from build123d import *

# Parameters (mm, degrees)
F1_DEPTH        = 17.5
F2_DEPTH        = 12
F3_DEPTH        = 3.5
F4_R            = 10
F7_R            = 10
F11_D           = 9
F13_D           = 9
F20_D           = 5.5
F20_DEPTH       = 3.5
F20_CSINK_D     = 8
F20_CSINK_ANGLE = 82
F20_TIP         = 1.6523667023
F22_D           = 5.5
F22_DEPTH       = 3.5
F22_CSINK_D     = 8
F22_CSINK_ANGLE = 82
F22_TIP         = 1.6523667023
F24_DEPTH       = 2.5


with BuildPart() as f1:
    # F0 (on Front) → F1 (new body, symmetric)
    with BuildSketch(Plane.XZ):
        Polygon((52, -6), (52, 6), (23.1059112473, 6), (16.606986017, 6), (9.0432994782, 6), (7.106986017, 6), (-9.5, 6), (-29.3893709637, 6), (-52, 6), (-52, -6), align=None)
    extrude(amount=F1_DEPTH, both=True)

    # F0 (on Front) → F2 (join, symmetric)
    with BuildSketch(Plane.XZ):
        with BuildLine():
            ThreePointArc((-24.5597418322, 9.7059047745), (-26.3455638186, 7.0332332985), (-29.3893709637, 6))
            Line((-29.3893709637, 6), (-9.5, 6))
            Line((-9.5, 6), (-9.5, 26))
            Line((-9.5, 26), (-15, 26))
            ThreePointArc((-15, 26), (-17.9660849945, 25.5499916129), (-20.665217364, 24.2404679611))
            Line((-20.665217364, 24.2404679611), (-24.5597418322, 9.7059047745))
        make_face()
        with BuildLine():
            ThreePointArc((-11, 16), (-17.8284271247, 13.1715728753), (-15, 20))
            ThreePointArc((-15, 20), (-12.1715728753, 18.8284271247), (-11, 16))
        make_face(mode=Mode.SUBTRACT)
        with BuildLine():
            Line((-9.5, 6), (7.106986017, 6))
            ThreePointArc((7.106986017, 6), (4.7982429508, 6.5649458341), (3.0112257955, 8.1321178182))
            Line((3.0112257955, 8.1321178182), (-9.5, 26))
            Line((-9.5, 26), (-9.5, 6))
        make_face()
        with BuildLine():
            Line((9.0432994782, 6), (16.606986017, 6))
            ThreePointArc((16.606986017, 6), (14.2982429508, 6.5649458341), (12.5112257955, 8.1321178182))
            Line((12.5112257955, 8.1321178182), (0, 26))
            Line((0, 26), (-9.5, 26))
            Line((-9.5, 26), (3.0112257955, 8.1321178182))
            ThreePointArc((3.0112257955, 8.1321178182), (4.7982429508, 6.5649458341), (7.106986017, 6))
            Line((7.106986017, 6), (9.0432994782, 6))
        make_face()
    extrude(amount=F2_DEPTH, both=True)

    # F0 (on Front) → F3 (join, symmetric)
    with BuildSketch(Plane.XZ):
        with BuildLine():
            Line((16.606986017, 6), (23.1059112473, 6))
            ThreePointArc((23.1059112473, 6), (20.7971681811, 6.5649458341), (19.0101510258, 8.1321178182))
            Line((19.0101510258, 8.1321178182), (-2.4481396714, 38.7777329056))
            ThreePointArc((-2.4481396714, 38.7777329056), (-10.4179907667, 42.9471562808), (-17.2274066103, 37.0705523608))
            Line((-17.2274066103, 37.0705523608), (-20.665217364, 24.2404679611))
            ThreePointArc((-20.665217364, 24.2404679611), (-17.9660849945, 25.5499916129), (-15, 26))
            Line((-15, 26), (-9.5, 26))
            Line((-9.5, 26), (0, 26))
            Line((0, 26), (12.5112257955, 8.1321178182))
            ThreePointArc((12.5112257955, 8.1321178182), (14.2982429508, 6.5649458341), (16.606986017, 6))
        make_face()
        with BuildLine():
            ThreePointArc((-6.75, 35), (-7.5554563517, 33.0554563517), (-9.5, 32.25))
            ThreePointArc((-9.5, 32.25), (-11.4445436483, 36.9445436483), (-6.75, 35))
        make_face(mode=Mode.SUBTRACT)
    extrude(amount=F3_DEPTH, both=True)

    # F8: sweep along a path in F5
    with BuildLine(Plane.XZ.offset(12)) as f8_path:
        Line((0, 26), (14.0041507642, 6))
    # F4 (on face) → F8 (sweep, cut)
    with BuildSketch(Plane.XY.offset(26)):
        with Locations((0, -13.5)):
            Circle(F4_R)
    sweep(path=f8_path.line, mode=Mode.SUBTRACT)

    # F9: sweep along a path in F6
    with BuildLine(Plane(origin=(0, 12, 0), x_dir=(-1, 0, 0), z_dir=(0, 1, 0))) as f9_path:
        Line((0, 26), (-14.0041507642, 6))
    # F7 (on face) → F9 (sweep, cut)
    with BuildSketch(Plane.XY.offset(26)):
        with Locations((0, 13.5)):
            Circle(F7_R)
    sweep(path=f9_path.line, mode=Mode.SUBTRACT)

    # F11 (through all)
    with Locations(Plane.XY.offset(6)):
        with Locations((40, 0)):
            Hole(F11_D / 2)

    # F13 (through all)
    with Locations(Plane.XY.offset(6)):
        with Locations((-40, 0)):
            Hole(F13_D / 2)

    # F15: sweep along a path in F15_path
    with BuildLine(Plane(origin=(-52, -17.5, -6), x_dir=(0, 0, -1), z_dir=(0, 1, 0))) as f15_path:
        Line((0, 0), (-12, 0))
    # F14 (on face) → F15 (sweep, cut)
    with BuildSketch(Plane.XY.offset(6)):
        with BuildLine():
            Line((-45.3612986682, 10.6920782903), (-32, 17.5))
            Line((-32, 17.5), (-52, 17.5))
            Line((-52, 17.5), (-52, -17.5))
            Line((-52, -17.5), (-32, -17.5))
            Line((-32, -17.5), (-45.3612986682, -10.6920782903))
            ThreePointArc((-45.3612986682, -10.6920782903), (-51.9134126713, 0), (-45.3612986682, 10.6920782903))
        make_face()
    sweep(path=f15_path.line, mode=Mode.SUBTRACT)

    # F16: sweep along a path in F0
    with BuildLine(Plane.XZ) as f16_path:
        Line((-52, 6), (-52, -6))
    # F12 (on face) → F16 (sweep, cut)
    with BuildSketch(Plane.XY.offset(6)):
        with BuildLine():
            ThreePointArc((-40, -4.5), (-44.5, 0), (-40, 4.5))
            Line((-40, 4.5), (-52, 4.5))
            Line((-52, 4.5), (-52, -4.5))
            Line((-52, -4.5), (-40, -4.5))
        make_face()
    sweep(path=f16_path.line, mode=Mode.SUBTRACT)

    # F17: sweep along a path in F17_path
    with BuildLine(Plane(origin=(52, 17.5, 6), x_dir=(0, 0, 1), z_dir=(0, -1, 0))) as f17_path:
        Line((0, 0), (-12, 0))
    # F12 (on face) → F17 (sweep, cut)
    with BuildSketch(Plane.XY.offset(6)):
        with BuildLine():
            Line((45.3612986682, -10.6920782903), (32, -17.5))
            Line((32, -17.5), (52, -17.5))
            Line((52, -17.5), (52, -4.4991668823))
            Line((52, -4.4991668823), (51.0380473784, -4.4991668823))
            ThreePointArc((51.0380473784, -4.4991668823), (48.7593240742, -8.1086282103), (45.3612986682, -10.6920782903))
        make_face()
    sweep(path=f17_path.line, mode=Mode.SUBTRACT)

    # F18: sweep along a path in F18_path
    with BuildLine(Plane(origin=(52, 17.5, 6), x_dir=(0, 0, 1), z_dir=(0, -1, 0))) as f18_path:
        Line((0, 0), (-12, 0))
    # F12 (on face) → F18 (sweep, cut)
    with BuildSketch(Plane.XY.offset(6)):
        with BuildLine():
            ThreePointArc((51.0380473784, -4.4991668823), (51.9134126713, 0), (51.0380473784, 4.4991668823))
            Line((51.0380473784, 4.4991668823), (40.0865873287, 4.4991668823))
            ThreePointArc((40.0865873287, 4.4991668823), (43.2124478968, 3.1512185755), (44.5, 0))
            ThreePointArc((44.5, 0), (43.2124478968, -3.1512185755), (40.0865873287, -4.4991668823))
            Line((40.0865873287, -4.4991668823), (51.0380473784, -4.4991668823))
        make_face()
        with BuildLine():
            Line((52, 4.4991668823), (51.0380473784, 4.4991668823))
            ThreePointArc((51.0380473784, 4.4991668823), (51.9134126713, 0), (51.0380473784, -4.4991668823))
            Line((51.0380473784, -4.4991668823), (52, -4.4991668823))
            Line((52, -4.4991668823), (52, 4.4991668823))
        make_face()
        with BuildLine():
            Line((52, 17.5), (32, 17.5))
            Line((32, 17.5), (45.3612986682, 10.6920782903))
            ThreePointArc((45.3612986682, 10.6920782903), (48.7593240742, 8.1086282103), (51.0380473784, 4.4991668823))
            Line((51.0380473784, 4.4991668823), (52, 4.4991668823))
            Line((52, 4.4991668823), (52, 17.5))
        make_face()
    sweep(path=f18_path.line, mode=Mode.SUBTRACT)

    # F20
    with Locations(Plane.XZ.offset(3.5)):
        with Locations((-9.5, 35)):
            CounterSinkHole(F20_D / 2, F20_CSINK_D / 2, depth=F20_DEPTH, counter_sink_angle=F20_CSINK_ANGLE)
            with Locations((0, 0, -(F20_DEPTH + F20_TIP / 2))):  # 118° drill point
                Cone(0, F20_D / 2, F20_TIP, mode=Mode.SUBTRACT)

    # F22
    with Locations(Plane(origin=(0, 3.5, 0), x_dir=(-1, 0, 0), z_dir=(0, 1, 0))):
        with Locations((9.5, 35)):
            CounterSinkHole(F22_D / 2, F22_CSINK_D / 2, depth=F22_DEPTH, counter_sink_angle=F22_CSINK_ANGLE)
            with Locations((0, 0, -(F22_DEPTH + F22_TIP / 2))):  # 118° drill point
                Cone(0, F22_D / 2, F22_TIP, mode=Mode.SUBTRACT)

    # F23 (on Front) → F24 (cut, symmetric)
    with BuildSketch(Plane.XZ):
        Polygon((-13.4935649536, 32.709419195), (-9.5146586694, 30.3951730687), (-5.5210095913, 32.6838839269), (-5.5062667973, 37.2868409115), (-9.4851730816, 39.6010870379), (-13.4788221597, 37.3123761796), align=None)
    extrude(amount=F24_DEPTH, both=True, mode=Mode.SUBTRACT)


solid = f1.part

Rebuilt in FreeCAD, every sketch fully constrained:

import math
import FreeCAD as App
import Part
import Sketcher

V = App.Vector
Q = App.Units.Quantity


def add_polygon(sketch, points):
    """Adds a closed chain of lines whose ends are joined by coincident constraints."""
    first, n = sketch.GeometryCount, len(points)
    for a, b in zip(points, points[1:] + points[:1]):
        sketch.addGeometry(Part.LineSegment(App.Vector(*a, 0), App.Vector(*b, 0)), False)
    for i in range(n):
        sketch.addConstraint(Sketcher.Constraint("Coincident", first + i, 2, first + (i + 1) % n, 1))

doc = App.newDocument("Part")
body = doc.addObject("PartDesign::Body", "Body")

# Sketch on XZ plane
sketch1 = doc.addObject("Sketcher::SketchObject", "Sketch")
body.addObject(sketch1)
sketch1.AttachmentSupport = (doc.XZ_Plane, [""])
sketch1.MapMode = "FlatFace"
add_polygon(sketch1, [(52, -6), (52, 6), (-52, 6), (-52, -6)])  # lines 0-3
sketch1.addConstraint([
    Sketcher.Constraint("Vertical", 0),
    Sketcher.Constraint("Horizontal", 1),
    Sketcher.Constraint("Vertical", 2),
    Sketcher.Constraint("Horizontal", 3),
    Sketcher.Constraint("Symmetric", 0, 2, 2, 2, -1, 1),
    Sketcher.Constraint("DistanceX", 1, 2, 1, 1, Q("104 mm")),
    Sketcher.Constraint("DistanceY", 0, 1, 0, 2, Q("12 mm")),
])
pad1 = doc.addObject("PartDesign::Pad", "Pad")
body.addObject(pad1)
pad1.Profile = sketch1
pad1.Length = 35
pad1.Midplane = True

# Sketch on XZ plane
sketch2 = doc.addObject("Sketcher::SketchObject", "Sketch001")
body.addObject(sketch2)
sketch2.AttachmentSupport = (doc.XZ_Plane, [""])
sketch2.MapMode = "FlatFace"
sketch2.addGeometry([
    Part.ArcOfCircle(Part.Circle(V(-29.389371, 11, 0), V(0, 0, 1), 5), math.radians(-90), math.radians(-15)),  # 0
    Part.LineSegment(V(-29.389371, 6, 0), V(16.606986, 6, 0)),  # 1
    Part.ArcOfCircle(Part.Circle(V(16.606986, 11, 0), V(0, 0, 1), 5), math.radians(-145), math.radians(-90)),  # 2
    Part.LineSegment(V(12.511226, 8.132118, 0), V(0, 26, 0)),  # 3
    Part.LineSegment(V(0, 26, 0), V(-15, 26, 0)),  # 4
    Part.ArcOfCircle(Part.Circle(V(-15, 16, 0), V(0, 0, 1), 10), math.radians(90), math.radians(124.50803)),  # 5
    Part.LineSegment(V(-20.665217, 24.240468, 0), V(-24.559742, 9.705905, 0)),  # 6
    Part.ArcOfCircle(Part.Circle(V(-15, 16, 0), V(0, 0, 1), 4), math.radians(0), math.radians(90)),  # 7
    Part.ArcOfCircle(Part.Circle(V(-15, 16, 0), V(0, 0, 1), 4), math.radians(90), math.radians(360)),  # 8
], False)
sketch2.addConstraint([
    Sketcher.Constraint("Tangent", 0, 1, 1, 1),
    Sketcher.Constraint("Tangent", 1, 2, 2, 2),
    Sketcher.Constraint("Tangent", 2, 1, 3, 1),
    Sketcher.Constraint("Coincident", 3, 2, 4, 1),
    Sketcher.Constraint("Tangent", 4, 2, 5, 1),
    Sketcher.Constraint("Coincident", 5, 2, 6, 1),
    Sketcher.Constraint("Tangent", 6, 2, 0, 2),
    Sketcher.Constraint("Tangent", 7, 1, 8, 2),
    Sketcher.Constraint("Coincident", 8, 1, 7, 2),
    Sketcher.Constraint("Horizontal", 1),
    Sketcher.Constraint("Horizontal", 4),
    Sketcher.Constraint("Coincident", 7, 3, 5, 3),
    Sketcher.Constraint("Equal", 0, 2),
    Sketcher.Constraint("PointOnObject", 3, 2, -2),
    Sketcher.Constraint("Horizontal", 8, 3, 7, 1),
    Sketcher.Constraint("Vertical", 4, 2, 8, 1),
    Sketcher.Constraint("Radius", 0, Q("5 mm")),
    Sketcher.Constraint("Radius", 5, Q("10 mm")),
    Sketcher.Constraint("Radius", 7, Q("4 mm")),
    Sketcher.Constraint("DistanceX", 4, 2, 4, 1, Q("15 mm")),
    Sketcher.Constraint("Angle", 3, Q("125 deg")),
    Sketcher.Constraint("Angle", 6, Q("-105 deg")),
    Sketcher.Constraint("DistanceY", -1, 1, 0, 3, Q("11 mm")),
    Sketcher.Constraint("DistanceY", -1, 1, 5, 3, Q("16 mm")),
    Sketcher.Constraint("DistanceX", 1, 1, 1, 2, Q("45.996357 mm")),
])
pad2 = doc.addObject("PartDesign::Pad", "Pad001")
body.addObject(pad2)
pad2.Profile = sketch2
pad2.Length = 24
pad2.Midplane = True

# Sketch on XZ plane
sketch3 = doc.addObject("Sketcher::SketchObject", "Sketch002")
body.addObject(sketch3)
sketch3.AttachmentSupport = (doc.XZ_Plane, [""])
sketch3.MapMode = "FlatFace"
sketch3.addGeometry([
    Part.LineSegment(V(16.606986, 6, 0), V(23.105911, 6, 0)),  # 0
    Part.ArcOfCircle(Part.Circle(V(23.105911, 11, 0), V(0, 0, 1), 5), math.radians(-145), math.radians(-90)),  # 1
    Part.LineSegment(V(19.010151, 8.132118, 0), V(-2.44814, 38.777733, 0)),  # 2
    Part.ArcOfCircle(Part.Circle(V(-9.5, 35, 0), V(0, 0, 1), 8), math.radians(28.178278), math.radians(165)),  # 3
    Part.LineSegment(V(-17.227407, 37.070552, 0), V(-20.665217, 24.240468, 0)),  # 4
    Part.ArcOfCircle(Part.Circle(V(-15, 16, 0), V(0, 0, 1), 10), math.radians(90), math.radians(124.50803)),  # 5
    Part.LineSegment(V(-15, 26, 0), V(0, 26, 0)),  # 6
    Part.LineSegment(V(0, 26, 0), V(12.511226, 8.132118, 0)),  # 7
    Part.ArcOfCircle(Part.Circle(V(16.606986, 11, 0), V(0, 0, 1), 5), math.radians(-145), math.radians(-90)),  # 8
    Part.ArcOfCircle(Part.Circle(V(-9.5, 35, 0), V(0, 0, 1), 2.75), math.radians(0), math.radians(270)),  # 9
    Part.ArcOfCircle(Part.Circle(V(-9.5, 35, 0), V(0, 0, 1), 2.75), math.radians(-90), math.radians(0)),  # 10
], False)
sketch3.addConstraint([
    Sketcher.Constraint("Tangent", 0, 2, 1, 2),
    Sketcher.Constraint("Tangent", 1, 1, 2, 1),
    Sketcher.Constraint("Coincident", 2, 2, 3, 1),
    Sketcher.Constraint("Tangent", 3, 2, 4, 1),
    Sketcher.Constraint("Coincident", 4, 2, 5, 2),
    Sketcher.Constraint("Tangent", 5, 1, 6, 1),
    Sketcher.Constraint("Coincident", 6, 2, 7, 1),
    Sketcher.Constraint("Tangent", 7, 2, 8, 1),
    Sketcher.Constraint("Tangent", 8, 2, 0, 1),
    Sketcher.Constraint("Tangent", 9, 1, 10, 2),
    Sketcher.Constraint("Coincident", 10, 1, 9, 2),
    Sketcher.Constraint("Horizontal", 0),
    Sketcher.Constraint("Horizontal", 6),
    Sketcher.Constraint("Coincident", 9, 3, 3, 3),
    Sketcher.Constraint("Equal", 1, 8),
    Sketcher.Constraint("PointOnObject", 6, 2, -2),
    Sketcher.Constraint("Parallel", 2, 7),
    Sketcher.Constraint("Horizontal", 10, 3, 9, 1),
    Sketcher.Constraint("Vertical", 9, 3, 10, 1),
    Sketcher.Constraint("Radius", 1, Q("5 mm")),
    Sketcher.Constraint("Radius", 3, Q("8 mm")),
    Sketcher.Constraint("Radius", 5, Q("10 mm")),
    Sketcher.Constraint("DistanceX", 6, 1, 6, 2, Q("15 mm")),
    Sketcher.Constraint("Angle", 2, Q("125 deg")),
    Sketcher.Constraint("Angle", 4, Q("-105 deg")),
    Sketcher.Constraint("Radius", 9, Q("2.75 mm")),
    Sketcher.Constraint("DistanceY", -1, 1, 1, 3, Q("11 mm")),
    Sketcher.Constraint("DistanceY", -1, 1, 3, 3, Q("35 mm")),
    Sketcher.Constraint("DistanceY", -1, 1, 5, 3, Q("16 mm")),
    Sketcher.Constraint("DistanceX", 3, 3, -1, 1, Q("9.5 mm")),
    Sketcher.Constraint("Distance", 2, Q("37.411388 mm")),
])
pad3 = doc.addObject("PartDesign::Pad", "Pad002")
body.addObject(pad3)
pad3.Profile = sketch3
pad3.Length = 7
pad3.Midplane = True

# Sketch on XY plane
sketch4 = doc.addObject("Sketcher::SketchObject", "Sketch003")
body.addObject(sketch4)
sketch4.AttachmentSupport = (doc.XY_Plane, [""])
sketch4.MapMode = "FlatFace"
sketch4.AttachmentOffset = App.Placement(V(0, 0, 26), App.Rotation())
sketch4.addGeometry(Part.Circle(V(0, -13.5, 0), V(0, 0, 1), 10), False)
sketch4.addConstraint([
    Sketcher.Constraint("PointOnObject", 0, 3, -2),
    Sketcher.Constraint("Diameter", 0, Q("20 mm")),
    Sketcher.Constraint("DistanceY", 0, 3, -1, 1, Q("13.5 mm")),
])

# Sketch on an angled plane
sketch5 = doc.addObject("Sketcher::SketchObject", "Sketch004")
body.addObject(sketch5)
sketch5.Placement = App.Placement(V(12.216004, 0, 8.553738), App.Rotation(V(0.573576436, 0, -0.819152044), V(0, 0.999999999, 0), V(0.819152044, 0, 0.573576436), "ZXY"))
sketch5.addGeometry(Part.LineSegment(V(-21.297953, -12, 0), V(3.117539, -12, 0)), False)
sketch5.addConstraint([
    Sketcher.Constraint("Horizontal", 0),
    Sketcher.Constraint("DistanceY", 0, 1, -1, 1, Q("12 mm")),
    Sketcher.Constraint("DistanceX", 0, 1, 0, 2, Q("24.415492 mm")),
    Sketcher.Constraint("DistanceX", -1, 1, 0, 2, Q("3.117539 mm")),
])
doc.recompute()

subtractivepipe = doc.addObject("PartDesign::SubtractivePipe", "SubtractivePipe")
body.addObject(subtractivepipe)
subtractivepipe.Profile = sketch4
subtractivepipe.Spine = (sketch5, ["Edge1"])

# Sketch on XY plane
sketch6 = doc.addObject("Sketcher::SketchObject", "Sketch005")
body.addObject(sketch6)
sketch6.AttachmentSupport = (doc.XY_Plane, [""])
sketch6.MapMode = "FlatFace"
sketch6.AttachmentOffset = App.Placement(V(0, 0, 26), App.Rotation())
sketch6.addGeometry(Part.Circle(V(0, 13.5, 0), V(0, 0, 1), 10), False)
sketch6.addConstraint([
    Sketcher.Constraint("PointOnObject", 0, 3, -2),
    Sketcher.Constraint("Diameter", 0, Q("20 mm")),
    Sketcher.Constraint("DistanceY", -1, 1, 0, 3, Q("13.5 mm")),
])

# Sketch on an angled plane
sketch7 = doc.addObject("Sketcher::SketchObject", "Sketch006")
body.addObject(sketch7)
sketch7.Placement = App.Placement(V(12.216004, 0, 8.553738), App.Rotation(V(0.573576436, 0, -0.819152044), V(0, 0.999999999, 0), V(0.819152044, 0, 0.573576436), "ZXY"))
sketch7.addGeometry(Part.LineSegment(V(-21.297953, 12, 0), V(3.117539, 12, 0)), False)
sketch7.addConstraint([
    Sketcher.Constraint("Horizontal", 0),
    Sketcher.Constraint("DistanceY", -1, 1, 0, 1, Q("12 mm")),
    Sketcher.Constraint("DistanceX", 0, 1, 0, 2, Q("24.415492 mm")),
    Sketcher.Constraint("DistanceX", -1, 1, 0, 2, Q("3.117539 mm")),
])
doc.recompute()

subtractivepipe2 = doc.addObject("PartDesign::SubtractivePipe", "SubtractivePipe001")
body.addObject(subtractivepipe2)
subtractivepipe2.Profile = sketch6
subtractivepipe2.Spine = (sketch7, ["Edge1"])

# Sketch on XY plane
sketch8 = doc.addObject("Sketcher::SketchObject", "Sketch007")
body.addObject(sketch8)
sketch8.AttachmentSupport = (doc.XY_Plane, [""])
sketch8.MapMode = "FlatFace"
sketch8.AttachmentOffset = App.Placement(V(0, 0, 6), App.Rotation())
sketch8.addGeometry(Part.Circle(V(40, 0, 0), V(0, 0, 1), 4.5), False)
sketch8.addConstraint([
    Sketcher.Constraint("PointOnObject", 0, 3, -1),
    Sketcher.Constraint("Diameter", 0, Q("9 mm")),
    Sketcher.Constraint("DistanceX", -1, 1, 0, 3, Q("40 mm")),
])
doc.recompute()
hole = doc.addObject("PartDesign::Hole", "Hole")
body.addObject(hole)
hole.Profile = sketch8
hole.ThreadType = "None"
hole.Diameter = 9
hole.DepthType = "ThroughAll"

# Sketch on XY plane
sketch9 = doc.addObject("Sketcher::SketchObject", "Sketch008")
body.addObject(sketch9)
sketch9.AttachmentSupport = (doc.XY_Plane, [""])
sketch9.MapMode = "FlatFace"
sketch9.AttachmentOffset = App.Placement(V(0, 0, 6), App.Rotation())
sketch9.addGeometry(Part.Circle(V(-40, 0, 0), V(0, 0, 1), 4.5), False)
sketch9.addConstraint([
    Sketcher.Constraint("PointOnObject", 0, 3, -1),
    Sketcher.Constraint("Diameter", 0, Q("9 mm")),
    Sketcher.Constraint("DistanceX", 0, 3, -1, 1, Q("40 mm")),
])
doc.recompute()
hole2 = doc.addObject("PartDesign::Hole", "Hole001")
body.addObject(hole2)
hole2.Profile = sketch9
hole2.ThreadType = "None"
hole2.Diameter = 9
hole2.DepthType = "ThroughAll"

# Sketch on XY plane
sketch10 = doc.addObject("Sketcher::SketchObject", "Sketch009")
body.addObject(sketch10)
sketch10.AttachmentSupport = (doc.XY_Plane, [""])
sketch10.MapMode = "FlatFace"
sketch10.AttachmentOffset = App.Placement(V(0, 0, 6), App.Rotation())
sketch10.addGeometry([
    Part.LineSegment(V(-45.361299, 10.692078, 0), V(-32, 17.5, 0)),  # 0
    Part.LineSegment(V(-32, 17.5, 0), V(-52, 17.5, 0)),  # 1
    Part.LineSegment(V(-52, 17.5, 0), V(-52, -17.5, 0)),  # 2
    Part.LineSegment(V(-52, -17.5, 0), V(-32, -17.5, 0)),  # 3
    Part.LineSegment(V(-32, -17.5, 0), V(-45.361299, -10.692078, 0)),  # 4
    Part.ArcOfCircle(Part.Circle(V(-39.913413, 0, 0), V(0, 0, 1), 12), math.radians(117), math.radians(243)),  # 5
], False)
sketch10.addConstraint([
    Sketcher.Constraint("Coincident", 0, 2, 1, 1),
    Sketcher.Constraint("Coincident", 1, 2, 2, 1),
    Sketcher.Constraint("Coincident", 2, 2, 3, 1),
    Sketcher.Constraint("Coincident", 3, 2, 4, 1),
    Sketcher.Constraint("Tangent", 4, 2, 5, 2),
    Sketcher.Constraint("Tangent", 5, 1, 0, 1),
    Sketcher.Constraint("Horizontal", 1),
    Sketcher.Constraint("Vertical", 2),
    Sketcher.Constraint("Horizontal", 3),
    Sketcher.Constraint("Symmetric", 0, 2, 3, 2, -1),
    Sketcher.Constraint("PointOnObject", 5, 3, -1),
    Sketcher.Constraint("Radius", 5, Q("12 mm")),
    Sketcher.Constraint("DistanceX", 1, 2, 1, 1, Q("20 mm")),
    Sketcher.Constraint("DistanceY", 2, 2, 2, 1, Q("35 mm")),
    Sketcher.Constraint("Angle", 0, Q("27 deg")),
    Sketcher.Constraint("DistanceX", 0, 2, -1, 1, Q("32 mm")),
])

# Sketch on XZ plane
sketch11 = doc.addObject("Sketcher::SketchObject", "Sketch010")
body.addObject(sketch11)
sketch11.AttachmentSupport = (doc.XZ_Plane, [""])
sketch11.MapMode = "FlatFace"
sketch11.AttachmentOffset = App.Placement(V(0, 0, 17.5), App.Rotation())
sketch11.addGeometry(Part.LineSegment(V(-52, -6, 0), V(-52, 6, 0)), False)
sketch11.addConstraint([
    Sketcher.Constraint("Vertical", 0),
    Sketcher.Constraint("DistanceY", 0, 1, 0, 2, Q("12 mm")),
    Sketcher.Constraint("DistanceX", 0, 1, -1, 1, Q("52 mm")),
    Sketcher.Constraint("DistanceY", 0, 1, -1, 1, Q("6 mm")),
])
doc.recompute()

subtractivepipe3 = doc.addObject("PartDesign::SubtractivePipe", "SubtractivePipe002")
body.addObject(subtractivepipe3)
subtractivepipe3.Profile = sketch10
subtractivepipe3.Spine = (sketch11, ["Edge1"])

# Sketch on XY plane
sketch12 = doc.addObject("Sketcher::SketchObject", "Sketch011")
body.addObject(sketch12)
sketch12.AttachmentSupport = (doc.XY_Plane, [""])
sketch12.MapMode = "FlatFace"
sketch12.AttachmentOffset = App.Placement(V(0, 0, 6), App.Rotation())
sketch12.addGeometry([
    Part.ArcOfCircle(Part.Circle(V(-40, 0, 0), V(0, 0, 1), 4.5), math.radians(90), math.radians(270)),
    Part.LineSegment(V(-40, 4.5, 0), V(-52, 4.5, 0)),
    Part.LineSegment(V(-52, 4.5, 0), V(-52, -4.5, 0)),
    Part.LineSegment(V(-52, -4.5, 0), V(-40, -4.5, 0)),
], False)
sketch12.addConstraint([
    Sketcher.Constraint("Tangent", 0, 1, 1, 1),
    Sketcher.Constraint("Coincident", 1, 2, 2, 1),
    Sketcher.Constraint("Coincident", 2, 2, 3, 1),
    Sketcher.Constraint("Tangent", 3, 2, 0, 2),
    Sketcher.Constraint("Horizontal", 1),
    Sketcher.Constraint("Vertical", 2),
    Sketcher.Constraint("Horizontal", 3),
    Sketcher.Constraint("PointOnObject", 0, 3, -1),
    Sketcher.Constraint("Radius", 0, Q("4.5 mm")),
    Sketcher.Constraint("DistanceX", 1, 2, 1, 1, Q("12 mm")),
    Sketcher.Constraint("DistanceX", 0, 3, -1, 1, Q("40 mm")),
])

# Sketch on XZ plane
sketch13 = doc.addObject("Sketcher::SketchObject", "Sketch012")
body.addObject(sketch13)
sketch13.AttachmentSupport = (doc.XZ_Plane, [""])
sketch13.MapMode = "FlatFace"
sketch13.addGeometry(Part.LineSegment(V(-52, 6, 0), V(-52, -6, 0)), False)
sketch13.addConstraint([
    Sketcher.Constraint("Vertical", 0),
    Sketcher.Constraint("DistanceY", 0, 2, 0, 1, Q("12 mm")),
    Sketcher.Constraint("DistanceX", 0, 1, -1, 1, Q("52 mm")),
    Sketcher.Constraint("DistanceY", -1, 1, 0, 1, Q("6 mm")),
])
doc.recompute()

subtractivepipe4 = doc.addObject("PartDesign::SubtractivePipe", "SubtractivePipe003")
body.addObject(subtractivepipe4)
subtractivepipe4.Profile = sketch12
subtractivepipe4.Spine = (sketch13, ["Edge1"])

# Sketch on XY plane
sketch14 = doc.addObject("Sketcher::SketchObject", "Sketch013")
body.addObject(sketch14)
sketch14.AttachmentSupport = (doc.XY_Plane, [""])
sketch14.MapMode = "FlatFace"
sketch14.AttachmentOffset = App.Placement(V(0, 0, 6), App.Rotation())
sketch14.addGeometry([
    Part.LineSegment(V(45.361299, -10.692078, 0), V(32, -17.5, 0)),  # 0
    Part.LineSegment(V(32, -17.5, 0), V(52, -17.5, 0)),  # 1
    Part.LineSegment(V(52, -17.5, 0), V(52, -4.499167, 0)),  # 2
    Part.LineSegment(V(52, -4.499167, 0), V(51.038047, -4.499167, 0)),  # 3
    Part.ArcOfCircle(Part.Circle(V(39.913413, 0, 0), V(0, 0, 1), 12), math.radians(-63), math.radians(-22.020022)),  # 4
], False)
sketch14.addConstraint([
    Sketcher.Constraint("Coincident", 0, 2, 1, 1),
    Sketcher.Constraint("Coincident", 1, 2, 2, 1),
    Sketcher.Constraint("Coincident", 2, 2, 3, 1),
    Sketcher.Constraint("Coincident", 3, 2, 4, 2),
    Sketcher.Constraint("Tangent", 4, 1, 0, 1),
    Sketcher.Constraint("Horizontal", 1),
    Sketcher.Constraint("Vertical", 2),
    Sketcher.Constraint("Horizontal", 3),
    Sketcher.Constraint("PointOnObject", 4, 3, -1),
    Sketcher.Constraint("Radius", 4, Q("12 mm")),
    Sketcher.Constraint("DistanceX", 1, 1, 1, 2, Q("20 mm")),
    Sketcher.Constraint("Angle", 0, Q("-153 deg")),
    Sketcher.Constraint("DistanceX", -1, 1, 0, 2, Q("32 mm")),
    Sketcher.Constraint("DistanceY", 0, 2, -1, 1, Q("17.5 mm")),
    Sketcher.Constraint("DistanceX", 3, 2, 3, 1, Q("0.961953 mm")),
])

# Sketch on XZ plane
sketch15 = doc.addObject("Sketcher::SketchObject", "Sketch014")
body.addObject(sketch15)
sketch15.AttachmentSupport = (doc.XZ_Plane, [""])
sketch15.MapMode = "FlatFace"
sketch15.AttachmentOffset = App.Placement(V(0, 0, -17.5), App.Rotation())
sketch15.addGeometry(Part.LineSegment(V(52, 6, 0), V(52, -6, 0)), False)
sketch15.addConstraint([
    Sketcher.Constraint("Vertical", 0),
    Sketcher.Constraint("DistanceY", 0, 2, 0, 1, Q("12 mm")),
    Sketcher.Constraint("DistanceX", -1, 1, 0, 1, Q("52 mm")),
    Sketcher.Constraint("DistanceY", -1, 1, 0, 1, Q("6 mm")),
])
doc.recompute()

subtractivepipe5 = doc.addObject("PartDesign::SubtractivePipe", "SubtractivePipe004")
body.addObject(subtractivepipe5)
subtractivepipe5.Profile = sketch14
subtractivepipe5.Spine = (sketch15, ["Edge1"])

# Sketch on XY plane
sketch16 = doc.addObject("Sketcher::SketchObject", "Sketch015")
body.addObject(sketch16)
sketch16.AttachmentSupport = (doc.XY_Plane, [""])
sketch16.MapMode = "FlatFace"
sketch16.AttachmentOffset = App.Placement(V(0, 0, 6), App.Rotation())
sketch16.addGeometry([
    Part.ArcOfCircle(Part.Circle(V(40, 0, 0), V(0, 0, 1), 4.5), math.radians(0), math.radians(88.897468)),  # 0
    Part.ArcOfCircle(Part.Circle(V(40, 0, 0), V(0, 0, 1), 4.5), math.radians(-88.897468), math.radians(0)),  # 1
    Part.LineSegment(V(40.086587, -4.499167, 0), V(52, -4.499167, 0)),  # 2
    Part.LineSegment(V(52, -4.499167, 0), V(52, 17.5, 0)),  # 3
    Part.LineSegment(V(52, 17.5, 0), V(32, 17.5, 0)),  # 4
    Part.LineSegment(V(32, 17.5, 0), V(45.361299, 10.692078, 0)),  # 5
    Part.ArcOfCircle(Part.Circle(V(39.913413, 0, 0), V(0, 0, 1), 12), math.radians(22.020022), math.radians(63)),  # 6
    Part.LineSegment(V(51.038047, 4.499167, 0), V(40.086587, 4.499167, 0)),  # 7
], False)
sketch16.addConstraint([
    Sketcher.Constraint("Tangent", 0, 1, 1, 2),
    Sketcher.Constraint("Coincident", 1, 1, 2, 1),
    Sketcher.Constraint("Coincident", 2, 2, 3, 1),
    Sketcher.Constraint("Coincident", 3, 2, 4, 1),
    Sketcher.Constraint("Coincident", 4, 2, 5, 1),
    Sketcher.Constraint("Tangent", 5, 2, 6, 2),
    Sketcher.Constraint("Coincident", 6, 1, 7, 1),
    Sketcher.Constraint("Coincident", 7, 2, 0, 2),
    Sketcher.Constraint("Horizontal", 2),
    Sketcher.Constraint("Vertical", 3),
    Sketcher.Constraint("Horizontal", 4),
    Sketcher.Constraint("Horizontal", 7),
    Sketcher.Constraint("Equal", 0, 1),
    Sketcher.Constraint("Symmetric", 1, 1, 7, 2, -1),
    Sketcher.Constraint("PointOnObject", 6, 3, -1),
    Sketcher.Constraint("PointOnObject", 0, 1, -1),
    Sketcher.Constraint("Radius", 6, Q("12 mm")),
    Sketcher.Constraint("Radius", 0, Q("4.5 mm")),
    Sketcher.Constraint("DistanceX", 4, 2, 4, 1, Q("20 mm")),
    Sketcher.Constraint("Angle", 5, Q("-27 deg")),
    Sketcher.Constraint("DistanceX", -1, 1, 0, 3, Q("40 mm")),
    Sketcher.Constraint("DistanceX", -1, 1, 2, 2, Q("52 mm")),
    Sketcher.Constraint("DistanceY", -1, 1, 3, 2, Q("17.5 mm")),
    Sketcher.Constraint("DistanceX", 7, 2, 7, 1, Q("10.95146 mm")),
])

# Sketch on XZ plane
sketch17 = doc.addObject("Sketcher::SketchObject", "Sketch016")
body.addObject(sketch17)
sketch17.AttachmentSupport = (doc.XZ_Plane, [""])
sketch17.MapMode = "FlatFace"
sketch17.AttachmentOffset = App.Placement(V(0, 0, -17.5), App.Rotation())
sketch17.addGeometry(Part.LineSegment(V(52, 6, 0), V(52, -6, 0)), False)
sketch17.addConstraint([
    Sketcher.Constraint("Vertical", 0),
    Sketcher.Constraint("DistanceY", 0, 2, 0, 1, Q("12 mm")),
    Sketcher.Constraint("DistanceX", -1, 1, 0, 1, Q("52 mm")),
    Sketcher.Constraint("DistanceY", -1, 1, 0, 1, Q("6 mm")),
])
doc.recompute()

subtractivepipe6 = doc.addObject("PartDesign::SubtractivePipe", "SubtractivePipe005")
body.addObject(subtractivepipe6)
subtractivepipe6.Profile = sketch16
subtractivepipe6.Spine = (sketch17, ["Edge1"])

# Sketch on XZ plane
sketch18 = doc.addObject("Sketcher::SketchObject", "Sketch017")
body.addObject(sketch18)
sketch18.AttachmentSupport = (doc.XZ_Plane, [""])
sketch18.MapMode = "FlatFace"
sketch18.AttachmentOffset = App.Placement(V(0, 0, 3.5), App.Rotation())
sketch18.addGeometry(Part.Circle(V(-9.5, 35, 0), V(0, 0, 1), 2.75), False)
sketch18.addConstraint([
    Sketcher.Constraint("Diameter", 0, Q("5.5 mm")),
    Sketcher.Constraint("DistanceY", -1, 1, 0, 3, Q("35 mm")),
    Sketcher.Constraint("DistanceX", 0, 3, -1, 1, Q("9.5 mm")),
])
doc.recompute()
hole3 = doc.addObject("PartDesign::Hole", "Hole002")
body.addObject(hole3)
hole3.Profile = sketch18
hole3.ThreadType = "None"
hole3.Diameter = 5.5
hole3.DepthType = "Dimension"
hole3.Depth = 3.5
hole3.DrillPoint = "Angled"
hole3.DrillPointAngle = 118
hole3.HoleCutType = "Countersink"
hole3.HoleCutDiameter = 8
hole3.HoleCutCountersinkAngle = 82

# Sketch on XZ plane
sketch19 = doc.addObject("Sketcher::SketchObject", "Sketch018")
body.addObject(sketch19)
sketch19.AttachmentSupport = (doc.XZ_Plane, [""])
sketch19.MapMode = "FlatFace"
sketch19.AttachmentOffset = App.Placement(V(0, 0, -3.5), App.Rotation())
sketch19.addGeometry(Part.Circle(V(-9.5, 35, 0), V(0, 0, 1), 2.75), False)
sketch19.addConstraint([
    Sketcher.Constraint("Diameter", 0, Q("5.5 mm")),
    Sketcher.Constraint("DistanceY", -1, 1, 0, 3, Q("35 mm")),
    Sketcher.Constraint("DistanceX", 0, 3, -1, 1, Q("9.5 mm")),
])
doc.recompute()
hole4 = doc.addObject("PartDesign::Hole", "Hole003")
body.addObject(hole4)
hole4.Profile = sketch19
hole4.ThreadType = "None"
hole4.Diameter = 5.5
hole4.DepthType = "Dimension"
hole4.Depth = 3.5
hole4.DrillPoint = "Angled"
hole4.DrillPointAngle = 118
hole4.HoleCutType = "Countersink"
hole4.HoleCutDiameter = 8
hole4.HoleCutCountersinkAngle = 82
hole4.Reversed = True

# Sketch on XZ plane
sketch20 = doc.addObject("Sketcher::SketchObject", "Sketch019")
body.addObject(sketch20)
sketch20.AttachmentSupport = (doc.XZ_Plane, [""])
sketch20.MapMode = "FlatFace"
add_polygon(sketch20, [(-13.493565, 32.709419), (-9.514659, 30.395173), (-5.52101, 32.683884), (-5.506267, 37.286841), (-9.485173, 39.601087), (-13.478822, 37.312376)])  # lines 0-5
sketch20.addConstraint([
    Sketcher.Constraint("Parallel", 0, 3),
    Sketcher.Constraint("Parallel", 1, 4),
    Sketcher.Constraint("Parallel", 2, 5),
    Sketcher.Constraint("Equal", 0, 1),
    Sketcher.Constraint("Equal", 1, 2),
    Sketcher.Constraint("Equal", 2, 3),
    Sketcher.Constraint("DistanceX", 5, 2, 2, 2, Q("7.987298 mm")),
    Sketcher.Constraint("Distance", 0, Q("4.602981 mm")),
    Sketcher.Constraint("DistanceX", 0, 2, -1, 1, Q("9.514659 mm")),
    Sketcher.Constraint("DistanceX", 1, 2, -1, 1, Q("5.52101 mm")),
    Sketcher.Constraint("DistanceY", -1, 1, 2, 2, Q("37.286841 mm")),
    Sketcher.Constraint("DistanceY", -1, 1, 5, 2, Q("32.709419 mm")),
])
pocket1 = doc.addObject("PartDesign::Pocket", "Pocket")
body.addObject(pocket1)
pocket1.Profile = sketch20
pocket1.Length = 5
pocket1.Midplane = True

doc.recompute()
